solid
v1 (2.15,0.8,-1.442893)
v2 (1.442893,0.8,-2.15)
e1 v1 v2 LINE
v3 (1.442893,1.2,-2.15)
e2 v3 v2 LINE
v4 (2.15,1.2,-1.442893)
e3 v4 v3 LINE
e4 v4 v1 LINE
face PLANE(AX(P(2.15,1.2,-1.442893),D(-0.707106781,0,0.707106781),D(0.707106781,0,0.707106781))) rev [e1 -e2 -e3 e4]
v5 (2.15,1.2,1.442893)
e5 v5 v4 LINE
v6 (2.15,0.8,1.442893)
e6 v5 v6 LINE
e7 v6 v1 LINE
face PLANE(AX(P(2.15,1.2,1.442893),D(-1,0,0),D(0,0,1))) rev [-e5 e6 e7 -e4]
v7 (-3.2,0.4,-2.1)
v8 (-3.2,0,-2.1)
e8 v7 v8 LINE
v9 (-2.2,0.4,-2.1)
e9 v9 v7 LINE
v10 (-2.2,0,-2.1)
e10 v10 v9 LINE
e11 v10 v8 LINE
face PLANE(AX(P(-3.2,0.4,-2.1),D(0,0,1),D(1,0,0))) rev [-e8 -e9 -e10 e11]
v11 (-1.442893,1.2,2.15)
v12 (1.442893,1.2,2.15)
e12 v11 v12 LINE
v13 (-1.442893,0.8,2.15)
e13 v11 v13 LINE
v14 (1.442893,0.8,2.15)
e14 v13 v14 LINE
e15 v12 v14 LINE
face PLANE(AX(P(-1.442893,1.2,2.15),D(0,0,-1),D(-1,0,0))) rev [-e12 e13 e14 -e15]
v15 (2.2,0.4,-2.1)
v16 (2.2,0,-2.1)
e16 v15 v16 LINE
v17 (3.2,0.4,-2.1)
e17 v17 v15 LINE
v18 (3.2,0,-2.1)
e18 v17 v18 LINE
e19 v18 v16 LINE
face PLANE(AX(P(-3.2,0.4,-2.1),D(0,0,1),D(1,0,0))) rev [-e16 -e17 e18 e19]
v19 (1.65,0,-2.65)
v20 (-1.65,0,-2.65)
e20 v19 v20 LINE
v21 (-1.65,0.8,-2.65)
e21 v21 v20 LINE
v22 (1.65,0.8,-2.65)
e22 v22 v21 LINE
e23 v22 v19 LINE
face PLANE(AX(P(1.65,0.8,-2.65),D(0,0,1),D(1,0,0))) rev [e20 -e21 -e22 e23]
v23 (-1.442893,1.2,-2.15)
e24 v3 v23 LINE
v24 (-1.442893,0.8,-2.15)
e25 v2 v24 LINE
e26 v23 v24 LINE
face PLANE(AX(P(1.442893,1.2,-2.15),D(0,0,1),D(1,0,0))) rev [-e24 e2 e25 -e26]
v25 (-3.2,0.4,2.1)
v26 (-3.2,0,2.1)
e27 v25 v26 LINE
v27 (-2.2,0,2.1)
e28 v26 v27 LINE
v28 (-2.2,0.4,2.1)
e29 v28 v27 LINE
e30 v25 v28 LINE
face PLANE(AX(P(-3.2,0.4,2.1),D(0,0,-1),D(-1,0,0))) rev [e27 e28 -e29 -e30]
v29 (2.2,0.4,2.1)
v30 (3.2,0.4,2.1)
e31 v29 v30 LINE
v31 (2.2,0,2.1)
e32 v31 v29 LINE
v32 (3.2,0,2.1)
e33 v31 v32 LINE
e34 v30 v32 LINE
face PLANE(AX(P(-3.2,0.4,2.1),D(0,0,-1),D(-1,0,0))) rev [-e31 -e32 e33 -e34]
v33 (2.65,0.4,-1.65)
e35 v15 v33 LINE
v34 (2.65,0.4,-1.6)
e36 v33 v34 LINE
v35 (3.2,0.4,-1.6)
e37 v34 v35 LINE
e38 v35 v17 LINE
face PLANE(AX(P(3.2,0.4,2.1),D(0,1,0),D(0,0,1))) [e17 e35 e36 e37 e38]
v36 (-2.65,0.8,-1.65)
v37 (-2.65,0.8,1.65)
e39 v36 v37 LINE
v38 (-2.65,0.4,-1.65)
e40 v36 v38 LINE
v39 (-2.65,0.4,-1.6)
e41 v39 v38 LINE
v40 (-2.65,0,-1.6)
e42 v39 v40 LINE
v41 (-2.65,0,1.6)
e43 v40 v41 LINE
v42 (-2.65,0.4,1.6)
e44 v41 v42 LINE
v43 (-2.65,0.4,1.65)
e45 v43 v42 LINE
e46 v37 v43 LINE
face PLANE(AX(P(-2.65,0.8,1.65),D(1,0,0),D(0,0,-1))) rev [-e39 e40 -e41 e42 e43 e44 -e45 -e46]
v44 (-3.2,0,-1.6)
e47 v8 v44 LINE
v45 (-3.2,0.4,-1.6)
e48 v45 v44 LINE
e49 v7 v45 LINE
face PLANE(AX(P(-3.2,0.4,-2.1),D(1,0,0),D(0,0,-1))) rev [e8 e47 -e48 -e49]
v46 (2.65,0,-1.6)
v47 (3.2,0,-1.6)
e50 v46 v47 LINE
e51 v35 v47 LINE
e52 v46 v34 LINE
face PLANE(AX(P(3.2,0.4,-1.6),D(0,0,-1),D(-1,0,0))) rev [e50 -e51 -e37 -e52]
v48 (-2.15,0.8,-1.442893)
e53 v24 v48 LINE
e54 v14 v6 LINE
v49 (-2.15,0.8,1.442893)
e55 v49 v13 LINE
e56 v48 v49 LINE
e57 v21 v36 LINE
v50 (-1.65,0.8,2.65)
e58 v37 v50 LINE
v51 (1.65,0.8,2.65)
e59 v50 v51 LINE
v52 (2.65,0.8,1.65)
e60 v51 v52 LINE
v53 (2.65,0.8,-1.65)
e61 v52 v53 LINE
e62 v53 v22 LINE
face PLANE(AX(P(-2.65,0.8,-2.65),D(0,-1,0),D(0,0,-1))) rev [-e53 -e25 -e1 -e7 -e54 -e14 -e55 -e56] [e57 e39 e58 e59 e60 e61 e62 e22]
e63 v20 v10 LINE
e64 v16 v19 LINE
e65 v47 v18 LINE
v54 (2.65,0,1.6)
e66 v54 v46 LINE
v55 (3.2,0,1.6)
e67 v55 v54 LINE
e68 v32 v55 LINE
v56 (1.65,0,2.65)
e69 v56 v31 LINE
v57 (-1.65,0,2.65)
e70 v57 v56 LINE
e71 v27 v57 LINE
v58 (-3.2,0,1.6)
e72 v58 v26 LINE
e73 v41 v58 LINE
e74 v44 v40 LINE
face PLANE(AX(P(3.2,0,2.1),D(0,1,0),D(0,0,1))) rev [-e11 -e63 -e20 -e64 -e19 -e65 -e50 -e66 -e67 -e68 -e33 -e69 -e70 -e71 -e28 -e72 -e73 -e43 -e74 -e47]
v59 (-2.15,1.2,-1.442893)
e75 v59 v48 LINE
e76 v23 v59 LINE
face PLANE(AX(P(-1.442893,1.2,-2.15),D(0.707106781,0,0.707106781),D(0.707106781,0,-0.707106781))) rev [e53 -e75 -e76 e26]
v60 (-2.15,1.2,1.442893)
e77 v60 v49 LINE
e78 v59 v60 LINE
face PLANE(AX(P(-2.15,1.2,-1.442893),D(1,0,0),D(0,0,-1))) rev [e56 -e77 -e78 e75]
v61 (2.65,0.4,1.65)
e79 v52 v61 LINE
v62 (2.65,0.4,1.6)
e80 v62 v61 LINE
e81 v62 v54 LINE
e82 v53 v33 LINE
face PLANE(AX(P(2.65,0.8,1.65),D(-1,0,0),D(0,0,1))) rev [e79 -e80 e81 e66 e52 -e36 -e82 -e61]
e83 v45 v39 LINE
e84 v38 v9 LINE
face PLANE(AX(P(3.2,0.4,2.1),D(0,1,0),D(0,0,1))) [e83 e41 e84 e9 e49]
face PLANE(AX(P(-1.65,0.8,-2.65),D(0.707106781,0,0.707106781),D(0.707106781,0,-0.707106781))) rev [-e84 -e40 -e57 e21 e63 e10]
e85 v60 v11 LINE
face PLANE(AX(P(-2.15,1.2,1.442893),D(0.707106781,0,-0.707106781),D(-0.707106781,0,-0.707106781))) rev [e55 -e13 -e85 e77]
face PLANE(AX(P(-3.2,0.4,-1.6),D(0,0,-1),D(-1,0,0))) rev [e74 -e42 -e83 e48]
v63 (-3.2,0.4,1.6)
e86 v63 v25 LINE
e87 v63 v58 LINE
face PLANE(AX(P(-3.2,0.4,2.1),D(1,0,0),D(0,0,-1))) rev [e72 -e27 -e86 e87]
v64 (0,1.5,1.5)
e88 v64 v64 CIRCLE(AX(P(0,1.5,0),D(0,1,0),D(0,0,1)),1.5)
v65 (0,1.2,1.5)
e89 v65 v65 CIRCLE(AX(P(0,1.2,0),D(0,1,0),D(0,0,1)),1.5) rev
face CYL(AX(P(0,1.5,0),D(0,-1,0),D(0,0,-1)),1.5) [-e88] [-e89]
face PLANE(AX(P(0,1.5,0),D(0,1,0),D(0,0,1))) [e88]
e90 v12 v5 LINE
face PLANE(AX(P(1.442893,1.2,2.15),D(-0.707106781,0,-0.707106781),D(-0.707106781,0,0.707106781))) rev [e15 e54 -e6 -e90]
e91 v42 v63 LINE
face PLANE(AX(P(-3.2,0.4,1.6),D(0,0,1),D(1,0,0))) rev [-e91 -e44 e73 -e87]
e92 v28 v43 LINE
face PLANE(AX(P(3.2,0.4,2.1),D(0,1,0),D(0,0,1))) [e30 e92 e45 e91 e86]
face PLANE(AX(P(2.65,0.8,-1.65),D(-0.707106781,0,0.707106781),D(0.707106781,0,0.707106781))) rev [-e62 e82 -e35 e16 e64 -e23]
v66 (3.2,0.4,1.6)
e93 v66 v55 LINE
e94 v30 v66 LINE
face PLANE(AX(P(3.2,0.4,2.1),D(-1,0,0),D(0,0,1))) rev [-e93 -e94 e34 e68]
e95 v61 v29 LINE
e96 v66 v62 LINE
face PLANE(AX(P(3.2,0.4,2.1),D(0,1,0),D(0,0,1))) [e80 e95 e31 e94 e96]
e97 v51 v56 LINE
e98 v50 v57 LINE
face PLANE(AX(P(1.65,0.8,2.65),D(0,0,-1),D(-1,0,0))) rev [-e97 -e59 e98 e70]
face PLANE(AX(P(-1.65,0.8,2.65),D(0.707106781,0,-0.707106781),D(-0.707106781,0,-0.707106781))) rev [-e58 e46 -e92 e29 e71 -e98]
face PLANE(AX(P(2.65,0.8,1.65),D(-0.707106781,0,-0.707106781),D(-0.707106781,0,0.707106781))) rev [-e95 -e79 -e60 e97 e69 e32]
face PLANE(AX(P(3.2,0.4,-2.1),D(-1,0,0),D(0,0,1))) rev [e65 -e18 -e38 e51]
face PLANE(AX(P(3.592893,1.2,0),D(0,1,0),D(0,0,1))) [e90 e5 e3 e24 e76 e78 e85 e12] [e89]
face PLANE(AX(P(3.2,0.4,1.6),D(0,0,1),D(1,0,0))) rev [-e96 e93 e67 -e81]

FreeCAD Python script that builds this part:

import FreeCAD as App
import Part
import Sketcher
from FreeCAD import Vector

doc = App.newDocument("Part")
body = doc.addObject("PartDesign::Body", "Body")

# Sketch on XZ plane
sketch1 = body.newObject("Sketcher::SketchObject", "Sketch")
sketch1.AttachmentSupport = (doc.getObject("XZ_Plane"), [""])
sketch1.MapMode = "FlatFace"
sketch1.addGeometry(Part.LineSegment(Vector(3.2, -2.1, 0), Vector(-3.2, -2.1, 0)), False)
sketch1.addGeometry(Part.LineSegment(Vector(-3.2, -2.1, 0), Vector(-3.2, -1.6, 0)), False)
sketch1.addGeometry(Part.LineSegment(Vector(-3.2, -1.6, 0), Vector(-2.2, -1.6, 0)), False)
sketch1.addGeometry(Part.LineSegment(Vector(-2.2, -1.6, 0), Vector(-2.2, 1.6, 0)), False)
sketch1.addGeometry(Part.LineSegment(Vector(-2.2, 1.6, 0), Vector(-3.2, 1.6, 0)), False)
sketch1.addGeometry(Part.LineSegment(Vector(-3.2, 1.6, 0), Vector(-3.2, 2.1, 0)), False)
sketch1.addGeometry(Part.LineSegment(Vector(-3.2, 2.1, 0), Vector(3.2, 2.1, 0)), False)
sketch1.addGeometry(Part.LineSegment(Vector(3.2, 2.1, 0), Vector(3.2, 1.6, 0)), False)
sketch1.addGeometry(Part.LineSegment(Vector(3.2, 1.6, 0), Vector(2.2, 1.6, 0)), False)
sketch1.addGeometry(Part.LineSegment(Vector(2.2, 1.6, 0), Vector(2.2, -1.6, 0)), False)
sketch1.addGeometry(Part.LineSegment(Vector(2.2, -1.6, 0), Vector(3.2, -1.6, 0)), False)
sketch1.addGeometry(Part.LineSegment(Vector(3.2, -1.6, 0), Vector(3.2, -2.1, 0)), False)
sketch1.addConstraint(Sketcher.Constraint("Coincident", 0, 2, 1, 1))
sketch1.addConstraint(Sketcher.Constraint("Coincident", 1, 2, 2, 1))
sketch1.addConstraint(Sketcher.Constraint("Coincident", 2, 2, 3, 1))
sketch1.addConstraint(Sketcher.Constraint("Coincident", 3, 2, 4, 1))
sketch1.addConstraint(Sketcher.Constraint("Coincident", 4, 2, 5, 1))
sketch1.addConstraint(Sketcher.Constraint("Coincident", 5, 2, 6, 1))
sketch1.addConstraint(Sketcher.Constraint("Coincident", 6, 2, 7, 1))
sketch1.addConstraint(Sketcher.Constraint("Coincident", 7, 2, 8, 1))
sketch1.addConstraint(Sketcher.Constraint("Coincident", 8, 2, 9, 1))
sketch1.addConstraint(Sketcher.Constraint("Coincident", 9, 2, 10, 1))
sketch1.addConstraint(Sketcher.Constraint("Coincident", 10, 2, 11, 1))
sketch1.addConstraint(Sketcher.Constraint("Coincident", 11, 2, 0, 1))
sketch1.addConstraint(Sketcher.Constraint("Horizontal", 0))
sketch1.addConstraint(Sketcher.Constraint("Vertical", 1))
sketch1.addConstraint(Sketcher.Constraint("Horizontal", 2))
sketch1.addConstraint(Sketcher.Constraint("Vertical", 3))
sketch1.addConstraint(Sketcher.Constraint("Horizontal", 4))
sketch1.addConstraint(Sketcher.Constraint("Vertical", 5))
sketch1.addConstraint(Sketcher.Constraint("Horizontal", 6))
sketch1.addConstraint(Sketcher.Constraint("Vertical", 7))
sketch1.addConstraint(Sketcher.Constraint("Horizontal", 8))
sketch1.addConstraint(Sketcher.Constraint("Vertical", 9))
sketch1.addConstraint(Sketcher.Constraint("Horizontal", 10))
sketch1.addConstraint(Sketcher.Constraint("Vertical", 11))
sketch1.addConstraint(Sketcher.Constraint("Symmetric", 0, 2, 6, 2, -1, 1))
sketch1.addConstraint(Sketcher.Constraint("Symmetric", 2, 2, 8, 2, -1, 1))
sketch1.addConstraint(Sketcher.Constraint("Symmetric", 4, 2, 10, 2, -1, 1))
sketch1.addConstraint(Sketcher.Constraint("Symmetric", 4, 2, 7, 2, -2))
sketch1.addConstraint(Sketcher.Constraint("DistanceX", 2, 1, 2, 2, 1.0))
sketch1.addConstraint(Sketcher.Constraint("DistanceX", 0, 2, 0, 1, 6.4))
sketch1.addConstraint(Sketcher.Constraint("DistanceY", 1, 1, 1, 2, 0.5))
sketch1.addConstraint(Sketcher.Constraint("DistanceY", 3, 1, 3, 2, 3.2))
pad1 = body.newObject("PartDesign::Pad", "Pad")
pad1.Profile = sketch1
pad1.Length = 0.4
pad1.Reversed = True

# Sketch on XZ plane
sketch2 = body.newObject("Sketcher::SketchObject", "Sketch001")
sketch2.AttachmentSupport = (doc.getObject("XZ_Plane"), [""])
sketch2.MapMode = "FlatFace"
sketch2.addGeometry(Part.LineSegment(Vector(-1.6, -2.6, 0), Vector(-2.6, -1.6, 0)), False)
sketch2.addGeometry(Part.LineSegment(Vector(-2.6, -1.6, 0), Vector(-2.6, 1.6, 0)), False)
sketch2.addGeometry(Part.LineSegment(Vector(-2.6, 1.6, 0), Vector(-1.6, 2.6, 0)), False)
sketch2.addGeometry(Part.LineSegment(Vector(-1.6, 2.6, 0), Vector(1.6, 2.6, 0)), False)
sketch2.addGeometry(Part.LineSegment(Vector(1.6, 2.6, 0), Vector(2.6, 1.6, 0)), False)
sketch2.addGeometry(Part.LineSegment(Vector(2.6, 1.6, 0), Vector(2.6, -1.6, 0)), False)
sketch2.addGeometry(Part.LineSegment(Vector(2.6, -1.6, 0), Vector(1.6, -2.6, 0)), False)
sketch2.addGeometry(Part.LineSegment(Vector(1.6, -2.6, 0), Vector(-1.6, -2.6, 0)), False)
sketch2.addConstraint(Sketcher.Constraint("Coincident", 0, 2, 1, 1))
sketch2.addConstraint(Sketcher.Constraint("Coincident", 1, 2, 2, 1))
sketch2.addConstraint(Sketcher.Constraint("Coincident", 2, 2, 3, 1))
sketch2.addConstraint(Sketcher.Constraint("Coincident", 3, 2, 4, 1))
sketch2.addConstraint(Sketcher.Constraint("Coincident", 4, 2, 5, 1))
sketch2.addConstraint(Sketcher.Constraint("Coincident", 5, 2, 6, 1))
sketch2.addConstraint(Sketcher.Constraint("Coincident", 6, 2, 7, 1))
sketch2.addConstraint(Sketcher.Constraint("Coincident", 7, 2, 0, 1))
sketch2.addConstraint(Sketcher.Constraint("Vertical", 1))
sketch2.addConstraint(Sketcher.Constraint("Horizontal", 3))
sketch2.addConstraint(Sketcher.Constraint("Vertical", 5))
sketch2.addConstraint(Sketcher.Constraint("Horizontal", 7))
sketch2.addConstraint(Sketcher.Constraint("Symmetric", 0, 2, 4, 2, -1, 1))
sketch2.addConstraint(Sketcher.Constraint("Symmetric", 2, 2, 6, 2, -1, 1))
sketch2.addConstraint(Sketcher.Constraint("Perpendicular", 0, 2))
sketch2.addConstraint(Sketcher.Constraint("Perpendicular", 2, 4))
sketch2.addConstraint(Sketcher.Constraint("Perpendicular", 4, 6))
sketch2.addConstraint(Sketcher.Constraint("Horizontal", 1, 2, 4, 2))
sketch2.addConstraint(Sketcher.Constraint("Vertical", 3, 2, 6, 2))
sketch2.addConstraint(Sketcher.Constraint("Equal", 7, 1))
sketch2.addConstraint(Sketcher.Constraint("DistanceX", 3, 1, 3, 2, 3.3))
sketch2.addConstraint(Sketcher.Constraint("DistanceX", 1, 2, 2, 2, 1.0))
pad2 = body.newObject("PartDesign::Pad", "Pad001")
pad2.Profile = sketch2
pad2.Length = 0.8
pad2.Reversed = True

# Sketch on XZ plane
sketch3 = body.newObject("Sketcher::SketchObject", "Sketch002")
sketch3.AttachmentSupport = (doc.getObject("XZ_Plane"), [""])
sketch3.MapMode = "FlatFace"
sketch3.addGeometry(Part.LineSegment(Vector(2.1, 1.4, 0), Vector(2.1, -1.4, 0)), False)
sketch3.addGeometry(Part.LineSegment(Vector(2.1, -1.4, 0), Vector(1.4, -2.1, 0)), False)
sketch3.addGeometry(Part.LineSegment(Vector(1.4, -2.1, 0), Vector(-1.4, -2.1, 0)), False)
sketch3.addGeometry(Part.LineSegment(Vector(-1.4, -2.1, 0), Vector(-2.1, -1.4, 0)), False)
sketch3.addGeometry(Part.LineSegment(Vector(-2.1, -1.4, 0), Vector(-2.1, 1.4, 0)), False)
sketch3.addGeometry(Part.LineSegment(Vector(-2.1, 1.4, 0), Vector(-1.4, 2.1, 0)), False)
sketch3.addGeometry(Part.LineSegment(Vector(-1.4, 2.1, 0), Vector(1.4, 2.1, 0)), False)
sketch3.addGeometry(Part.LineSegment(Vector(1.4, 2.1, 0), Vector(2.1, 1.4, 0)), False)
sketch3.addConstraint(Sketcher.Constraint("Coincident", 0, 2, 1, 1))
sketch3.addConstraint(Sketcher.Constraint("Coincident", 1, 2, 2, 1))
sketch3.addConstraint(Sketcher.Constraint("Coincident", 2, 2, 3, 1))
sketch3.addConstraint(Sketcher.Constraint("Coincident", 3, 2, 4, 1))
sketch3.addConstraint(Sketcher.Constraint("Coincident", 4, 2, 5, 1))
sketch3.addConstraint(Sketcher.Constraint("Coincident", 5, 2, 6, 1))
sketch3.addConstraint(Sketcher.Constraint("Coincident", 6, 2, 7, 1))
sketch3.addConstraint(Sketcher.Constraint("Coincident", 7, 2, 0, 1))
sketch3.addConstraint(Sketcher.Constraint("Vertical", 0))
sketch3.addConstraint(Sketcher.Constraint("Horizontal", 2))
sketch3.addConstraint(Sketcher.Constraint("Vertical", 4))
sketch3.addConstraint(Sketcher.Constraint("Horizontal", 6))
sketch3.addConstraint(Sketcher.Constraint("Symmetric", 0, 2, 4, 2, -1, 1))
sketch3.addConstraint(Sketcher.Constraint("Symmetric", 1, 2, 5, 2, -1, 1))
sketch3.addConstraint(Sketcher.Constraint("Perpendicular", 1, 3))
sketch3.addConstraint(Sketcher.Constraint("Perpendicular", 5, 7))
sketch3.addConstraint(Sketcher.Constraint("Horizontal", 0, 2, 3, 2))
sketch3.addConstraint(Sketcher.Constraint("Horizontal", 4, 2, 7, 2))
sketch3.addConstraint(Sketcher.Constraint("Vertical", 2, 2, 5, 2))
sketch3.addConstraint(Sketcher.Constraint("Equal", 6, 0))
sketch3.addConstraint(Sketcher.Constraint("Distance", 1, 1.0))
sketch3.addConstraint(Sketcher.Constraint("DistanceX", 3, 2, 0, 2, 4.3))
pad3 = body.newObject("PartDesign::Pad", "Pad002")
pad3.Profile = sketch3
pad3.Length = 1.2
pad3.Reversed = True

# Sketch on XZ plane
sketch4 = body.newObject("Sketcher::SketchObject", "Sketch003")
sketch4.AttachmentSupport = (doc.getObject("XZ_Plane"), [""])
sketch4.MapMode = "FlatFace"
sketch4.addGeometry(Part.Circle(Vector(0, 0, 0), Vector(0, 0, 1), 1.5), False)
sketch4.addConstraint(Sketcher.Constraint("Coincident", 0, 3, -1, 1))
sketch4.addConstraint(Sketcher.Constraint("Diameter", 0, 3.0))
pad4 = body.newObject("PartDesign::Pad", "Pad003")
pad4.Profile = sketch4
pad4.Length = 1.5
pad4.Reversed = True

doc.recompute()
